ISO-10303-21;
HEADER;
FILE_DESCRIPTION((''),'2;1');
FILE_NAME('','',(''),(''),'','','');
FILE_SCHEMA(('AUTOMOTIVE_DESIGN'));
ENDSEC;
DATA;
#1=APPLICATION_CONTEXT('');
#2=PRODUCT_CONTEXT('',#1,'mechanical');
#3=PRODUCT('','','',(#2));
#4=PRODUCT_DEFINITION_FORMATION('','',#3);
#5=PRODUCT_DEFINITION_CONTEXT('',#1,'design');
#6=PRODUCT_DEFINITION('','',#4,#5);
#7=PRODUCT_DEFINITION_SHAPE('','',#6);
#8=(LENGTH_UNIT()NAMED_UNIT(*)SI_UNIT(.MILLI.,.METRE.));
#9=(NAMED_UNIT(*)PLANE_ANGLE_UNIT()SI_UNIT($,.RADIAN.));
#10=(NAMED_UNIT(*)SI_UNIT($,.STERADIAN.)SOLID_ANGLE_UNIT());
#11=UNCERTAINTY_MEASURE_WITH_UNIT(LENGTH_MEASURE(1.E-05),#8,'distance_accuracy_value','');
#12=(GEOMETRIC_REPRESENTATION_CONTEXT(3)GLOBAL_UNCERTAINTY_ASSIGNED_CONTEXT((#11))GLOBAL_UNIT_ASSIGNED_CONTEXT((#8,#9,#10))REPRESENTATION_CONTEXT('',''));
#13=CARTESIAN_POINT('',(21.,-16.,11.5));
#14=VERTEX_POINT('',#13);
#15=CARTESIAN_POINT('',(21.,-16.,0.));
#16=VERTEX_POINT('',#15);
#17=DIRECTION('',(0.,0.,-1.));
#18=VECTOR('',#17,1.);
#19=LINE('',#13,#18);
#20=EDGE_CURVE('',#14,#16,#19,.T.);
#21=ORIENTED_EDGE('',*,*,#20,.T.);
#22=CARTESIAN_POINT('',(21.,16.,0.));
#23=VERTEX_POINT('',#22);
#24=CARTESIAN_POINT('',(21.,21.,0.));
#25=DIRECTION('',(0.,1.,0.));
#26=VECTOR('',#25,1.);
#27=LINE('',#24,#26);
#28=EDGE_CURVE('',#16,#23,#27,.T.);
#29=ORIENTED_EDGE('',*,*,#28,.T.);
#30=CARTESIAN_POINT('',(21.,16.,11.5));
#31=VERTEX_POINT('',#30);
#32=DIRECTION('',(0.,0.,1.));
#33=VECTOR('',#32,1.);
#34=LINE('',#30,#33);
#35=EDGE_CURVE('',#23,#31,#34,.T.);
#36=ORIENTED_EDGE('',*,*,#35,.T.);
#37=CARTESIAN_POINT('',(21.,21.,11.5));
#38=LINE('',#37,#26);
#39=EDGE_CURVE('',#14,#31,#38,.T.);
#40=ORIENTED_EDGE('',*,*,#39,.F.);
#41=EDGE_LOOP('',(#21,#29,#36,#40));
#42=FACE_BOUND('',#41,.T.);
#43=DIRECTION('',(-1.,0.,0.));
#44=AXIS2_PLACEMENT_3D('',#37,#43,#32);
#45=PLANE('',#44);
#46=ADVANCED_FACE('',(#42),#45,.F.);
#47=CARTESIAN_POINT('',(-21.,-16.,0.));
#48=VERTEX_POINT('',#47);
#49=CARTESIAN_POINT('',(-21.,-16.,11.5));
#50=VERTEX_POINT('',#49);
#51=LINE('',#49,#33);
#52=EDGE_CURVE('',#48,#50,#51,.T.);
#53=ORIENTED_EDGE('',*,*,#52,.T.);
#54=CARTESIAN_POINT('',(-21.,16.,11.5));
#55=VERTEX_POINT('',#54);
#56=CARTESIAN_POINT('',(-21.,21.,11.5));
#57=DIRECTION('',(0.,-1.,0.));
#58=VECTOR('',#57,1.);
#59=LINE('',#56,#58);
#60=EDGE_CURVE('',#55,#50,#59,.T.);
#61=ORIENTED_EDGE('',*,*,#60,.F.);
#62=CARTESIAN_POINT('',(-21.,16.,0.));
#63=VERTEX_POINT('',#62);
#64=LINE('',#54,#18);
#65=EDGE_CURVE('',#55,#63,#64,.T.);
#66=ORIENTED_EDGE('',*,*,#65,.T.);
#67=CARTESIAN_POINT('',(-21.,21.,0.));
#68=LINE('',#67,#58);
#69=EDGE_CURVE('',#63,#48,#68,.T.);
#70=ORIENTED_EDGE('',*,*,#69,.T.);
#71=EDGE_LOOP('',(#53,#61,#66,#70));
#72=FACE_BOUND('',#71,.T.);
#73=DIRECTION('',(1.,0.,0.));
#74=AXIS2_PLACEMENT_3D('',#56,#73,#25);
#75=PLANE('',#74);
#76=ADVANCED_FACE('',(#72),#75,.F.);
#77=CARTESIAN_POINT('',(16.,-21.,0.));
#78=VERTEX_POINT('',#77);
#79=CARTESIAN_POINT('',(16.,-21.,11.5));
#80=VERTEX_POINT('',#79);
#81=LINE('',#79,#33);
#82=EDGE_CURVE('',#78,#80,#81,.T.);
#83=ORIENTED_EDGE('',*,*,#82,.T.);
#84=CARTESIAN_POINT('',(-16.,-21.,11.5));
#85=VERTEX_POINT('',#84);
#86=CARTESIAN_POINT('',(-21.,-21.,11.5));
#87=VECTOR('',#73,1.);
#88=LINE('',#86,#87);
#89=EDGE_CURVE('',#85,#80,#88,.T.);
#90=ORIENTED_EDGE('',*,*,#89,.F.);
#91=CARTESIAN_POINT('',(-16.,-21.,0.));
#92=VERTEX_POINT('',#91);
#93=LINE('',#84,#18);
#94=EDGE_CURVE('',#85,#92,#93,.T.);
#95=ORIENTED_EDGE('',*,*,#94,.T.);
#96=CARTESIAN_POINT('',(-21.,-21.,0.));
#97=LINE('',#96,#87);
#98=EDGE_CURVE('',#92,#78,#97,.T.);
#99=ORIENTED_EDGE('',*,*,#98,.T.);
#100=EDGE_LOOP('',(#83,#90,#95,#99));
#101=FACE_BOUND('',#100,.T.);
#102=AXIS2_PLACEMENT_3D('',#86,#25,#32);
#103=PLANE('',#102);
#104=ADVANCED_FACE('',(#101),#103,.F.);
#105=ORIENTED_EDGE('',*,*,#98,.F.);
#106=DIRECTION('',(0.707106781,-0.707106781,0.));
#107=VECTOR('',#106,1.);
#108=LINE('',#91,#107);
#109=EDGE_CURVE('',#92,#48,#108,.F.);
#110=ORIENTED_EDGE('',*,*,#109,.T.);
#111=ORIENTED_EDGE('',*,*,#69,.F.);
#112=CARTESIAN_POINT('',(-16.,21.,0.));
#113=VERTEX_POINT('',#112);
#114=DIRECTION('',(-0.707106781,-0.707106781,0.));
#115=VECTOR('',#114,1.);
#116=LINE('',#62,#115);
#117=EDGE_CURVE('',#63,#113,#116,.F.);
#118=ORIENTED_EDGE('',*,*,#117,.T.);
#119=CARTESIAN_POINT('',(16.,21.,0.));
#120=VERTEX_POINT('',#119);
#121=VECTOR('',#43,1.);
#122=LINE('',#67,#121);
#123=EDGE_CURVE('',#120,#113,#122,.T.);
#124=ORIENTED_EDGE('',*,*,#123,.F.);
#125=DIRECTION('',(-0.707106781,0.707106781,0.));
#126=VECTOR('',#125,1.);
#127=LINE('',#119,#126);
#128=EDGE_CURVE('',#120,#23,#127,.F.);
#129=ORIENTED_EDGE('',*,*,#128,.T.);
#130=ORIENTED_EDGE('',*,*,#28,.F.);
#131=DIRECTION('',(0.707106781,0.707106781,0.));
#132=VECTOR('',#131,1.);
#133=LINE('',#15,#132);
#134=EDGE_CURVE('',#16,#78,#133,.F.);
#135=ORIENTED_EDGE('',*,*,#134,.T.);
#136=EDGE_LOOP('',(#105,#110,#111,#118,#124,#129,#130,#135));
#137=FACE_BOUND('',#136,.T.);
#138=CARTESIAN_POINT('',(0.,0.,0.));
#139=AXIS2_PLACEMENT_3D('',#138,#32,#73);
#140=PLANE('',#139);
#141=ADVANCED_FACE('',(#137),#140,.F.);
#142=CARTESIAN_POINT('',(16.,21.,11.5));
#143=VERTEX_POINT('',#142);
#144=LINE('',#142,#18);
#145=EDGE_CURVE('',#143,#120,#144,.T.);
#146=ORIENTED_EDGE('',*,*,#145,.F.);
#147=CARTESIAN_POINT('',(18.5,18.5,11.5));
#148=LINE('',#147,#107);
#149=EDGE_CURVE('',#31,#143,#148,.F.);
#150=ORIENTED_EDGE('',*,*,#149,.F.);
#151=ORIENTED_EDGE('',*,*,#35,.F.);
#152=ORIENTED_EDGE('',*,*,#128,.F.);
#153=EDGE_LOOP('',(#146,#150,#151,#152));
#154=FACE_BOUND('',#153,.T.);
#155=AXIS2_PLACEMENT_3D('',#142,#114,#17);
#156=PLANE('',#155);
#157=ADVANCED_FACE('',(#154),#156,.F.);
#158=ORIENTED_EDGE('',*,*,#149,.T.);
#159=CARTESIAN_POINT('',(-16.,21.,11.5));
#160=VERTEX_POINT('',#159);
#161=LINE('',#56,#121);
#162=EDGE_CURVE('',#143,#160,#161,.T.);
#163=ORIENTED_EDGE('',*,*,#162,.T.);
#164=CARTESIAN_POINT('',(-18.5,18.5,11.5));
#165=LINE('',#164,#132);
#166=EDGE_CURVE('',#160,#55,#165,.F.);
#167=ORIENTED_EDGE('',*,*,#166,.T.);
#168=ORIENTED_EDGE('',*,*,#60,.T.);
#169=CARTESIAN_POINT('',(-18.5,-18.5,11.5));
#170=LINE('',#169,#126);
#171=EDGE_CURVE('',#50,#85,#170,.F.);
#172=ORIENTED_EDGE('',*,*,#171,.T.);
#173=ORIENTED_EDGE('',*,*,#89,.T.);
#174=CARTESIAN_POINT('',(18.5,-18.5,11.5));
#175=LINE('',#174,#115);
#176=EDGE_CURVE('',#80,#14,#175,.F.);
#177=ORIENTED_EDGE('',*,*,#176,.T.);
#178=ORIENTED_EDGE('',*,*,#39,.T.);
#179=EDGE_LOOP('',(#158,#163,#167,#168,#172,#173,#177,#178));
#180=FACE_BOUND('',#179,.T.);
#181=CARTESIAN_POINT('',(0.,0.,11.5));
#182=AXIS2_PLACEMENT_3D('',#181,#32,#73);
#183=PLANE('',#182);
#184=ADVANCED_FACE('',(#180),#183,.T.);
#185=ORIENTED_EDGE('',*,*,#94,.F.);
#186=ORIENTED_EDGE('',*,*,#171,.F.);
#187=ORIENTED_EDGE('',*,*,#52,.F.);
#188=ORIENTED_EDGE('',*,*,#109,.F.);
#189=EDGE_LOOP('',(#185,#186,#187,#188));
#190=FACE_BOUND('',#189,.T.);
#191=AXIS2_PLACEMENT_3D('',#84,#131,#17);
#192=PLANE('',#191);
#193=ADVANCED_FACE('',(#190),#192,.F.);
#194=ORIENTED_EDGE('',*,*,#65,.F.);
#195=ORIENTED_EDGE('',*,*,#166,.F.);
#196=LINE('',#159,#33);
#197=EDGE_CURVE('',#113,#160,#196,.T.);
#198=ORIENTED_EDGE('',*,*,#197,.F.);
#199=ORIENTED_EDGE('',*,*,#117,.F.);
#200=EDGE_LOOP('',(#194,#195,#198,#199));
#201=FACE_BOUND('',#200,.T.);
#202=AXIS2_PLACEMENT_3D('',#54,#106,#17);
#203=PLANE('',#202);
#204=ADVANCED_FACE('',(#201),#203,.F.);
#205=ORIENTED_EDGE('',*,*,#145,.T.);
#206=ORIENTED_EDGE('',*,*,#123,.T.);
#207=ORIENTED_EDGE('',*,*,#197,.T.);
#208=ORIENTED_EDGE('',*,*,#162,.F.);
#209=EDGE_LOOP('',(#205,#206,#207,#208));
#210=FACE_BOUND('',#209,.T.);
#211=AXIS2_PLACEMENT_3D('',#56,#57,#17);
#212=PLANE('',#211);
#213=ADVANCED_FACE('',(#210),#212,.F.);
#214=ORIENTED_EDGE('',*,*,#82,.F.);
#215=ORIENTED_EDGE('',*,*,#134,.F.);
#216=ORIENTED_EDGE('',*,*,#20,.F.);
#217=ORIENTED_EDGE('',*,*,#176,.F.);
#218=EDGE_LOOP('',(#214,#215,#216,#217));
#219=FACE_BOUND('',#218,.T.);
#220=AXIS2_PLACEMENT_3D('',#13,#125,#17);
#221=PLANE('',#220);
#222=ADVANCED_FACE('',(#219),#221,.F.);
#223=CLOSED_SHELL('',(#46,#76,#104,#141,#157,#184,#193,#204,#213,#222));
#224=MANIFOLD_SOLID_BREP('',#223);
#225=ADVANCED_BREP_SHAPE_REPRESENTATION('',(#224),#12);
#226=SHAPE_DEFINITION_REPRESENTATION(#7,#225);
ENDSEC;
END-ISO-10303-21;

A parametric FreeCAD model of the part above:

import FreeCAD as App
import Part
import Sketcher


def edges_at(feature, points):
    """Names of the edges that pass closest to the given points."""
    edges = feature.Shape.Edges
    near = lambda p: min(range(len(edges)), key=lambda i: edges[i].distToShape(Part.Vertex(*p))[0])
    return sorted({f"Edge{near(p) + 1}" for p in points})

doc = App.newDocument("Part")
body = doc.addObject("PartDesign::Body", "Body")

sketch1 = body.newObject("Sketcher::SketchObject", "Sketch")
sketch1.AttachmentSupport = (doc.getObject("XY_Plane"), [""])
sketch1.MapMode = "FlatFace"
sketch1.addGeometry(Part.LineSegment(App.Vector(-21, 21, 0), App.Vector(-21, -21, 0)), False)
sketch1.addGeometry(Part.LineSegment(App.Vector(-21, -21, 0), App.Vector(21, -21, 0)), False)
sketch1.addGeometry(Part.LineSegment(App.Vector(21, -21, 0), App.Vector(21, 21, 0)), False)
sketch1.addGeometry(Part.LineSegment(App.Vector(21, 21, 0), App.Vector(-21, 21, 0)), False)
sketch1.addConstraint(Sketcher.Constraint("Coincident", 0, 2, 1, 1))
sketch1.addConstraint(Sketcher.Constraint("Coincident", 1, 2, 2, 1))
sketch1.addConstraint(Sketcher.Constraint("Coincident", 2, 2, 3, 1))
sketch1.addConstraint(Sketcher.Constraint("Coincident", 3, 2, 0, 1))
sketch1.addConstraint(Sketcher.Constraint("Vertical", 0))
sketch1.addConstraint(Sketcher.Constraint("Horizontal", 1))
sketch1.addConstraint(Sketcher.Constraint("Vertical", 2))
sketch1.addConstraint(Sketcher.Constraint("Horizontal", 3))
sketch1.addConstraint(Sketcher.Constraint("Symmetric", 0, 2, 2, 2, -1, 1))
sketch1.addConstraint(Sketcher.Constraint("Equal", 3, 0))
sketch1.addConstraint(Sketcher.Constraint("DistanceX", 1, 1, 1, 2, 42.0))
pad1 = body.newObject("PartDesign::Pad", "Pad")
pad1.Profile = sketch1
pad1.Length = 11.5
doc.recompute()

chamfer = body.newObject("PartDesign::Chamfer", "Chamfer")
chamfer.Base = (pad1, edges_at(pad1, [
    (21, -21, 5.75),
    (-21, -21, 5.75),
    (-21, 21, 5.75),
    (21, 21, 5.75),
]))
chamfer.Size = 5

doc.recompute()
